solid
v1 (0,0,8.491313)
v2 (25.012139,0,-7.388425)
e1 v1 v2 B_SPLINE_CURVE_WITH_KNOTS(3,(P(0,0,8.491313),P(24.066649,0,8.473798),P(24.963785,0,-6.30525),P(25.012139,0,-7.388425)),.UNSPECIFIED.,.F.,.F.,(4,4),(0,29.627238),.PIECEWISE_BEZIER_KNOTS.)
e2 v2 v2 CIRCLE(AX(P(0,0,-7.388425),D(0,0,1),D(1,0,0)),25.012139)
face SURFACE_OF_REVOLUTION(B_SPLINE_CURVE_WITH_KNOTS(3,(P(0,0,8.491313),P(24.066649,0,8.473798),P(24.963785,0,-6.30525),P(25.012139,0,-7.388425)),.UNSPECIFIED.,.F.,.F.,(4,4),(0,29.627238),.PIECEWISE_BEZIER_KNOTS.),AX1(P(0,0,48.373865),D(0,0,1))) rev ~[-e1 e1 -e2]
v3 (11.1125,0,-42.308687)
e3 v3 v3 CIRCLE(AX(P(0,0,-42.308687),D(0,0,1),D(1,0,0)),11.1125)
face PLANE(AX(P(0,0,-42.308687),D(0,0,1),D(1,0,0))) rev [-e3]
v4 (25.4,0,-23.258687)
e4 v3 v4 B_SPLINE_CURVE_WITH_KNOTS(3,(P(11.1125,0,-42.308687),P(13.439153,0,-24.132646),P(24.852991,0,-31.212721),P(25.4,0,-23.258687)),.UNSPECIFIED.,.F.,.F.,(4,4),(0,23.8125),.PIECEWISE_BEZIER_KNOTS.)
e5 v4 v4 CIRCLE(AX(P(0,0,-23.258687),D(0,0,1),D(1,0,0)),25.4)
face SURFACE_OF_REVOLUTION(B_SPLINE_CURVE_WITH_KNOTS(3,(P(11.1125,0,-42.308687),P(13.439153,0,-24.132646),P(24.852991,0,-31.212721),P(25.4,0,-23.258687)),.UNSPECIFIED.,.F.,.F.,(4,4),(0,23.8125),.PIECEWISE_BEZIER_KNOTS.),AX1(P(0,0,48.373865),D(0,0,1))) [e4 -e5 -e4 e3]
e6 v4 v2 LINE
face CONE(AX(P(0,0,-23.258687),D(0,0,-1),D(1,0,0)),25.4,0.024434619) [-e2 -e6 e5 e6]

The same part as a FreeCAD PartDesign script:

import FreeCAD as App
import Part
import Sketcher
from FreeCAD import Vector

doc = App.newDocument("Part")
params = doc.addObject("Spreadsheet::Sheet", "Params")
for row, (alias, value) in enumerate([
    ("revolution_angle", "360 deg"),
], start=1):
    params.set(f"A{row}", alias)
    params.set(f"B{row}", "=" + value)
    params.setAlias(f"B{row}", alias)

body = doc.addObject("PartDesign::Body", "Body")

# Sketch on XZ plane
sketch1 = body.newObject("Sketcher::SketchObject", "Sketch")
sketch1.AttachmentSupport = (doc.getObject("XZ_Plane"), [""])
sketch1.MapMode = "FlatFace"
sketch1.addGeometry(Part.LineSegment(Vector(25.4, -23.258687, 0), Vector(25.012139, -7.388425, 0)), False)
sketch1.addGeometry(Part.BSplineCurve([Vector(0, 8.491313, 0), Vector(24.066649, 8.473798, 0), Vector(24.963785, -6.30525, 0), Vector(25.012139, -7.388425, 0)], [4, 4], [0, 29.627238], False, 3, [1, 1, 1, 1], False), False)
sketch1.addGeometry(Part.LineSegment(Vector(0, 8.491313, 0), Vector(0, -42.308687, 0)), False)
sketch1.addGeometry(Part.LineSegment(Vector(0, -42.308687, 0), Vector(11.1125, -42.308687, 0)), False)
sketch1.addGeometry(Part.BSplineCurve([Vector(11.1125, -42.308687, 0), Vector(13.439153, -24.132646, 0), Vector(24.852991, -31.212721, 0), Vector(25.4, -23.258687, 0)], [4, 4], [0, 23.8125], False, 3, [1, 1, 1, 1], False), False)
sketch1.addConstraint(Sketcher.Constraint("Block", 1))
sketch1.addConstraint(Sketcher.Constraint("Block", 4))
sketch1.addConstraint(Sketcher.Constraint("Coincident", 0, 2, 1, 2))
sketch1.addConstraint(Sketcher.Constraint("Coincident", 1, 1, 2, 1))
sketch1.addConstraint(Sketcher.Constraint("Coincident", 2, 2, 3, 1))
sketch1.addConstraint(Sketcher.Constraint("Coincident", 3, 2, 4, 1))
sketch1.addConstraint(Sketcher.Constraint("Coincident", 4, 2, 0, 1))
sketch1.addConstraint(Sketcher.Constraint("Vertical", 2))
sketch1.addConstraint(Sketcher.Constraint("Horizontal", 3))
revolution = body.newObject("PartDesign::Revolution", "Revolution")
revolution.Profile = sketch1
revolution.ReferenceAxis = (sketch1, ["V_Axis"])
revolution.setExpression("Angle", "Params.revolution_angle")

doc.recompute()
